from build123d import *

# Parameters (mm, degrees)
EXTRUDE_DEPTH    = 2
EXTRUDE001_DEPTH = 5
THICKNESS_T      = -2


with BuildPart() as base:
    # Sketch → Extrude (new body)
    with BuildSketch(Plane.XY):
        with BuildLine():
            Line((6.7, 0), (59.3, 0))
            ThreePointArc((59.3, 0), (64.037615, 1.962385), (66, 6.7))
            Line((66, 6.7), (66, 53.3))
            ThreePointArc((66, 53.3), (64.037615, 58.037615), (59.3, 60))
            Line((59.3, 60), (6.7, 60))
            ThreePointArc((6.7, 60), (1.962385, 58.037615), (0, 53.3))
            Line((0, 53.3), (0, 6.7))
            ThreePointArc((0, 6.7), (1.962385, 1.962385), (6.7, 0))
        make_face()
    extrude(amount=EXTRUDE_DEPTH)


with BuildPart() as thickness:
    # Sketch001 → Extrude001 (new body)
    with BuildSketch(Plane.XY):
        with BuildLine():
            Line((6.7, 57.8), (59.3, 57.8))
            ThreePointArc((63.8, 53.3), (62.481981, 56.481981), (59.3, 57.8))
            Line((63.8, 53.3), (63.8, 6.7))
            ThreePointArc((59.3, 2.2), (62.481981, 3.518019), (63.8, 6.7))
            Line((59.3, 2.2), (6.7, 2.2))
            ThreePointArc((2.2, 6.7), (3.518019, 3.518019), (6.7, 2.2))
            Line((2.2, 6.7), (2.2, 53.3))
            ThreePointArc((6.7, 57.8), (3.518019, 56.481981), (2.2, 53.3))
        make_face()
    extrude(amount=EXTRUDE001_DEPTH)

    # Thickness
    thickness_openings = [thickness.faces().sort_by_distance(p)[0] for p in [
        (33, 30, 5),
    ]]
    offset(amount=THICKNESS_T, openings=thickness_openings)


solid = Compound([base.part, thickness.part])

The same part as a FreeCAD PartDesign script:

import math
import FreeCAD as App
import Part
import Sketcher

V = App.Vector
Q = App.Units.Quantity


def faces_at(feature, points):
    """Names of the faces that lie closest to the given points."""
    faces = feature.Shape.Faces
    near = lambda p: min(range(len(faces)), key=lambda i: faces[i].distToShape(Part.Vertex(*p))[0])
    return sorted({f"Face{near(p) + 1}" for p in points})

doc = App.newDocument("Part")
body = doc.addObject("PartDesign::Body", "Body")

# Sketch on XY plane
sketch1 = doc.addObject("Sketcher::SketchObject", "Sketch")
body.addObject(sketch1)
sketch1.AttachmentSupport = (doc.XY_Plane, [""])
sketch1.MapMode = "FlatFace"
sketch1.addGeometry([
    Part.LineSegment(V(7, 0, 0), V(59, 0, 0)),  # 0
    Part.ArcOfCircle(Part.Circle(V(59, 7, 0), V(0, 0, 1), 7), math.radians(-90), math.radians(0)),  # 1
    Part.LineSegment(V(66, 7, 0), V(66, 53, 0)),  # 2
    Part.ArcOfCircle(Part.Circle(V(59, 53, 0), V(0, 0, 1), 7), math.radians(0), math.radians(90)),  # 3
    Part.LineSegment(V(59, 60, 0), V(7, 60, 0)),  # 4
    Part.ArcOfCircle(Part.Circle(V(7, 53, 0), V(0, 0, 1), 7), math.radians(90), math.radians(180)),  # 5
    Part.LineSegment(V(0, 53, 0), V(0, 7, 0)),  # 6
    Part.ArcOfCircle(Part.Circle(V(7, 7, 0), V(0, 0, 1), 7), math.radians(-180), math.radians(-90)),  # 7
], False)
sketch1.addConstraint([
    Sketcher.Constraint("Tangent", 0, 2, 1, 1),
    Sketcher.Constraint("Tangent", 1, 2, 2, 1),
    Sketcher.Constraint("Tangent", 2, 2, 3, 1),
    Sketcher.Constraint("Tangent", 3, 2, 4, 1),
    Sketcher.Constraint("Tangent", 4, 2, 5, 1),
    Sketcher.Constraint("Tangent", 5, 2, 6, 1),
    Sketcher.Constraint("Tangent", 6, 2, 7, 1),
    Sketcher.Constraint("Tangent", 7, 2, 0, 1),
    Sketcher.Constraint("Horizontal", 0),
    Sketcher.Constraint("Vertical", 2),
    Sketcher.Constraint("Horizontal", 4),
    Sketcher.Constraint("Vertical", 6),
    Sketcher.Constraint("Equal", 1, 3),
    Sketcher.Constraint("Equal", 3, 5),
    Sketcher.Constraint("Equal", 5, 7),
    Sketcher.Constraint("PointOnObject", 0, 2, -1),
    Sketcher.Constraint("PointOnObject", 5, 2, -2),
    Sketcher.Constraint("Radius", 1, Q("6.700001 mm")),
    Sketcher.Constraint("DistanceX", 0, 1, 0, 2, Q("52.6 mm")),
    Sketcher.Constraint("DistanceY", 2, 1, 2, 2, Q("46.6 mm")),
])
pad1 = doc.addObject("PartDesign::Pad", "Pad")
body.addObject(pad1)
pad1.Profile = sketch1
pad1.Length = 2
body2 = doc.addObject("PartDesign::Body", "Body001")

# Sketch on XY plane
sketch2 = doc.addObject("Sketcher::SketchObject", "Sketch001")
body2.addObject(sketch2)
sketch2.AttachmentSupport = (doc.getObject("XY_Plane001"), [""])
sketch2.MapMode = "FlatFace"
sketch2.addGeometry([
    Part.LineSegment(V(59.3, 57.8, 0), V(6.7, 57.8, 0)),  # 0
    Part.ArcOfCircle(Part.Circle(V(6.7, 53.3, 0), V(0, 0, 1), 4.5), math.radians(90), math.radians(180)),  # 1
    Part.LineSegment(V(2.2, 53.3, 0), V(2.2, 6.7, 0)),  # 2
    Part.ArcOfCircle(Part.Circle(V(6.7, 6.7, 0), V(0, 0, 1), 4.5), math.radians(180), math.radians(270)),  # 3
    Part.LineSegment(V(6.7, 2.2, 0), V(59.3, 2.2, 0)),  # 4
    Part.ArcOfCircle(Part.Circle(V(59.3, 6.7, 0), V(0, 0, 1), 4.5), math.radians(-90), math.radians(0)),  # 5
    Part.LineSegment(V(63.8, 6.7, 0), V(63.8, 53.3, 0)),  # 6
    Part.ArcOfCircle(Part.Circle(V(59.3, 53.3, 0), V(0, 0, 1), 4.5), math.radians(0), math.radians(90)),  # 7
], False)
sketch2.addConstraint([
    Sketcher.Constraint("Tangent", 0, 2, 1, 1),
    Sketcher.Constraint("Tangent", 1, 2, 2, 1),
    Sketcher.Constraint("Tangent", 2, 2, 3, 1),
    Sketcher.Constraint("Tangent", 3, 2, 4, 1),
    Sketcher.Constraint("Tangent", 4, 2, 5, 1),
    Sketcher.Constraint("Tangent", 5, 2, 6, 1),
    Sketcher.Constraint("Tangent", 6, 2, 7, 1),
    Sketcher.Constraint("Tangent", 7, 2, 0, 1),
    Sketcher.Constraint("Horizontal", 0),
    Sketcher.Constraint("Vertical", 2),
    Sketcher.Constraint("Horizontal", 4),
    Sketcher.Constraint("Vertical", 6),
    Sketcher.Constraint("Equal", 1, 3),
    Sketcher.Constraint("Equal", 3, 5),
    Sketcher.Constraint("Equal", 5, 7),
    Sketcher.Constraint("Radius", 1, Q("4.499998 mm")),
    Sketcher.Constraint("DistanceX", 0, 2, 0, 1, Q("52.6 mm")),
    Sketcher.Constraint("DistanceY", 2, 2, 2, 1, Q("46.6 mm")),
    Sketcher.Constraint("DistanceX", -1, 1, 1, 3, Q("6.699998 mm")),
    Sketcher.Constraint("DistanceY", -1, 1, 1, 3, Q("53.300002 mm")),
])
pad2 = doc.addObject("PartDesign::Pad", "Pad001")
body2.addObject(pad2)
pad2.Profile = sketch2
pad2.Length = 5
doc.recompute()

thickness = doc.addObject("PartDesign::Thickness", "Thickness")
body2.addObject(thickness)
thickness.Base = (pad2, faces_at(pad2, [(33, 30, 5)]))
thickness.Value = 2
thickness.Reversed = True
thickness.Join = "Arc"

doc.recompute()
